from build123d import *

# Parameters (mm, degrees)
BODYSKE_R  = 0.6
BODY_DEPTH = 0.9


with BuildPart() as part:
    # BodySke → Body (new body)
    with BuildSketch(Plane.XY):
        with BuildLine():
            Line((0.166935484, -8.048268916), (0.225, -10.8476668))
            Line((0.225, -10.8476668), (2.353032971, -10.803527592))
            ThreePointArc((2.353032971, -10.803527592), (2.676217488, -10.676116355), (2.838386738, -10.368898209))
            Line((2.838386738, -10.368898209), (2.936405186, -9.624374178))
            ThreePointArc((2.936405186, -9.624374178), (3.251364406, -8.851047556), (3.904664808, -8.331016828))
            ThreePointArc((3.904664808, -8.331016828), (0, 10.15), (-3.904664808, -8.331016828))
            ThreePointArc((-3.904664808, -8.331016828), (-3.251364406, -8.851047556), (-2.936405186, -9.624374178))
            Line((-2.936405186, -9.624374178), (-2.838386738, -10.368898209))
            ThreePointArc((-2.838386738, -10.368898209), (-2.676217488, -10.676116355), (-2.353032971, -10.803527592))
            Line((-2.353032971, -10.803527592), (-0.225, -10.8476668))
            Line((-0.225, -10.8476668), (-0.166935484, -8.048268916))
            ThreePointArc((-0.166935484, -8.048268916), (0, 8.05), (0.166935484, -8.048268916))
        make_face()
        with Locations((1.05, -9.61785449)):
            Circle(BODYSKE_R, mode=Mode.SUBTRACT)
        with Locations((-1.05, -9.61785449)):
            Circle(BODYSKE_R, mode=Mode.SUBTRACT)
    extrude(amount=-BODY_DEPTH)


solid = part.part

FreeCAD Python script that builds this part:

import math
import FreeCAD as App
import Part
import Sketcher
Q = App.Units.Quantity

doc = App.newDocument("Part")
body = doc.addObject("PartDesign::Body", "Body")

sketch1 = body.newObject("Sketcher::SketchObject", "Sketch")
sketch1.AttachmentSupport = (doc.getObject("XY_Plane"), [""])
sketch1.MapMode = "FlatFace"
sketch1.addGeometry([
    Part.LineSegment(App.Vector(0.166935, -8.048269, 0), App.Vector(0.225, -10.847667, 0)),
    Part.LineSegment(App.Vector(0.225, -10.847667, 0), App.Vector(2.353033, -10.803528, 0)),
    Part.ArcOfCircle(Part.Circle(App.Vector(2.342664, -10.303635, 0), App.Vector(0, 0, 1), 0.5), math.radians(-88.811754), math.radians(-7.5)),
    Part.LineSegment(App.Vector(2.838387, -10.368898, 0), App.Vector(2.936405, -9.624374, 0)),
    Part.ArcOfCircle(Part.Circle(App.Vector(4.57196, -9.839699, 0), App.Vector(0, 0, 1), 1.649668), math.radians(113.859978), math.radians(172.5)),
    Part.ArcOfCircle(Part.Circle(App.Vector(0, 0.497003, 0), App.Vector(0, 0, 1), 9.652997), math.radians(-66.140022), math.radians(246.140022)),
    Part.ArcOfCircle(Part.Circle(App.Vector(-4.57196, -9.839699, 0), App.Vector(0, 0, 1), 1.649668), math.radians(7.5), math.radians(66.140022)),
    Part.LineSegment(App.Vector(-2.936405, -9.624374, 0), App.Vector(-2.838387, -10.368898, 0)),
    Part.ArcOfCircle(Part.Circle(App.Vector(-2.342664, -10.303635, 0), App.Vector(0, 0, 1), 0.5), math.radians(-172.5), math.radians(-91.188246)),
    Part.LineSegment(App.Vector(-2.353033, -10.803528, 0), App.Vector(-0.225, -10.847667, 0)),
    Part.LineSegment(App.Vector(-0.225, -10.847667, 0), App.Vector(-0.166935, -8.048269, 0)),
    Part.ArcOfCircle(Part.Circle(App.Vector(0, 0, 0), App.Vector(0, 0, 1), 8.05), math.radians(-88.811753), math.radians(268.811753)),
    Part.Circle(App.Vector(-1.05, -9.617854, 0), App.Vector(0, 0, 1), 0.6),
    Part.Circle(App.Vector(1.05, -9.617854, 0), App.Vector(0, 0, 1), 0.6),
], False)
sketch1.addConstraint([
    Sketcher.Constraint("Coincident", 0, 2, 1, 1),
    Sketcher.Constraint("Tangent", 1, 2, 2, 1),
    Sketcher.Constraint("Tangent", 2, 2, 3, 1),
    Sketcher.Constraint("Tangent", 3, 2, 4, 2),
    Sketcher.Constraint("Tangent", 4, 1, 5, 1),
    Sketcher.Constraint("Tangent", 5, 2, 6, 2),
    Sketcher.Constraint("Tangent", 6, 1, 7, 1),
    Sketcher.Constraint("Tangent", 7, 2, 8, 1),
    Sketcher.Constraint("Tangent", 8, 2, 9, 1),
    Sketcher.Constraint("Coincident", 9, 2, 10, 1),
    Sketcher.Constraint("Coincident", 10, 2, 11, 2),
    Sketcher.Constraint("Coincident", 11, 1, 0, 1),
    Sketcher.Constraint("Coincident", 11, 3, -1, 1),
    Sketcher.Constraint("Equal", 4, 6),
    Sketcher.Constraint("Equal", 2, 8),
    Sketcher.Constraint("Equal", 12, 13),
    Sketcher.Constraint("Symmetric", 4, 3, 6, 3, -2),
    Sketcher.Constraint("Symmetric", 2, 3, 8, 3, -2),
    Sketcher.Constraint("Symmetric", 12, 3, 13, 3, -2),
    Sketcher.Constraint("Symmetric", 0, 2, 9, 2, -2),
    Sketcher.Constraint("Perpendicular", 0, 1),
    Sketcher.Constraint("Perpendicular", 9, 10),
    Sketcher.Constraint("Diameter", 12, 1.2),
    Sketcher.Constraint("Radius", 2, 0.5),
    Sketcher.Constraint("Radius", 11, 8.05),
    Sketcher.Constraint("Angle", 3, Q("82.5 deg")),
    Sketcher.Constraint("Distance", 0, 2.8),
    Sketcher.Constraint("DistanceX", 12, 3, 13, 3, 2.1),
    Sketcher.Constraint("Radius", 4, 1.649668),
    Sketcher.Constraint("DistanceX", 9, 2, 0, 2, 0.45),
    Sketcher.Constraint("Radius", 5, 9.652997),
    Sketcher.Constraint("DistanceX", 2, 3, 4, 1, 1.562),
    Sketcher.Constraint("DistanceY", 4, 3, -1, 1, 9.839699),
    Sketcher.Constraint("DistanceY", 2, 2, -1, 1, 10.368898),
    Sketcher.Constraint("DistanceY", 8, 3, 12, 3, 0.685781),
])
pad1 = body.newObject("PartDesign::Pad", "Pad")
pad1.Profile = sketch1
pad1.Length = 0.9
pad1.Reversed = True

doc.recompute()
